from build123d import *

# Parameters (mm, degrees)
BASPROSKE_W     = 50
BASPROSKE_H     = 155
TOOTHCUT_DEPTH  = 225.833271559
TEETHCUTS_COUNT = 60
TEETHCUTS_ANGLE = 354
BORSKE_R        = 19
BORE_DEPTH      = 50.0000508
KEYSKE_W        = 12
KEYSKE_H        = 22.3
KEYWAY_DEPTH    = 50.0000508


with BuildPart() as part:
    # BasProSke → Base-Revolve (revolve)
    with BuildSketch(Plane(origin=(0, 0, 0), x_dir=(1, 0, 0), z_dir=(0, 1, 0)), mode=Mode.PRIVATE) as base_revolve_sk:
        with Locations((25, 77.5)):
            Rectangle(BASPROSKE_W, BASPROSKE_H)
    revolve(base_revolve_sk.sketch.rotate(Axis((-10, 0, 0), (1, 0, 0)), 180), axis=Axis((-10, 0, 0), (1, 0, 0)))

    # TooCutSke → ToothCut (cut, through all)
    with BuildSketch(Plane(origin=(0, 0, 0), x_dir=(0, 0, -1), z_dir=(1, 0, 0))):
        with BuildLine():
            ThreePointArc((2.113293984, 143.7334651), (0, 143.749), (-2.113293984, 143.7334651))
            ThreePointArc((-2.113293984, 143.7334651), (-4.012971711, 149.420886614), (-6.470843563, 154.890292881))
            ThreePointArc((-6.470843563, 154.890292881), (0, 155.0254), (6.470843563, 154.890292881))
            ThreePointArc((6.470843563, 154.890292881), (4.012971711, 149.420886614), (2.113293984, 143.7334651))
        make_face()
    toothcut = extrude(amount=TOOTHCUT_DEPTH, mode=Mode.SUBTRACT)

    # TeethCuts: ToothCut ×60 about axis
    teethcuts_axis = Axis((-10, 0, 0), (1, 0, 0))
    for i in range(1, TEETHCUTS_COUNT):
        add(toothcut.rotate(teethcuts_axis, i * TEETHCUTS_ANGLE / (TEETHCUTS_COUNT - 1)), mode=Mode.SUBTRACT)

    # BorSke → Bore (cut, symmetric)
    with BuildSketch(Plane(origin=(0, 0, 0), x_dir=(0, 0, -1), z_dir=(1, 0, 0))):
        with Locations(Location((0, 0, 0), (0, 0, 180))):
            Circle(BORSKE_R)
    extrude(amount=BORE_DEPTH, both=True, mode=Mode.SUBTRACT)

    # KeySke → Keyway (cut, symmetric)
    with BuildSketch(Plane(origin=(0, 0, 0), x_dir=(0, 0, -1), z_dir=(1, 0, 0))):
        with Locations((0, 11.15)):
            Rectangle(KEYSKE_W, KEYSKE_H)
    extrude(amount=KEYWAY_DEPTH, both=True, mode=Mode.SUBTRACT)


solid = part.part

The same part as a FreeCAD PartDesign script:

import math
import FreeCAD as App
import Part
import Sketcher

V = App.Vector
Q = App.Units.Quantity

doc = App.newDocument("Part")
body = doc.addObject("PartDesign::Body", "Body")

sketch1 = body.newObject("Sketcher::SketchObject", "Sketch")
sketch1.AttachmentSupport = (doc.getObject("XZ_Plane"), [""])
sketch1.MapMode = "FlatFace"
sketch1.addGeometry([
    Part.LineSegment(V(0, -155, 0), V(0, 0, 0)),
    Part.LineSegment(V(0, 0, 0), V(50, 0, 0)),
    Part.LineSegment(V(50, 0, 0), V(50, -155, 0)),
    Part.LineSegment(V(50, -155, 0), V(0, -155, 0)),
], False)
sketch1.addConstraint([
    Sketcher.Constraint("Coincident", 0, 2, 1, 1),
    Sketcher.Constraint("Coincident", 1, 2, 2, 1),
    Sketcher.Constraint("Coincident", 2, 2, 3, 1),
    Sketcher.Constraint("Coincident", 3, 2, 0, 1),
    Sketcher.Constraint("Vertical", 0),
    Sketcher.Constraint("Horizontal", 1),
    Sketcher.Constraint("Vertical", 2),
    Sketcher.Constraint("Horizontal", 3),
    Sketcher.Constraint("Coincident", 0, 2, -1, 1),
    Sketcher.Constraint("DistanceX", 1, 1, 1, 2, Q("50 mm")),
    Sketcher.Constraint("DistanceY", 0, 1, 0, 2, Q("155 mm")),
])
revolution = body.newObject("PartDesign::Revolution", "Revolution")
revolution.Profile = sketch1
revolution.ReferenceAxis = (sketch1, ["H_Axis"])
revolution.Angle = 360

sketch2 = body.newObject("Sketcher::SketchObject", "Sketch001")
sketch2.AttachmentSupport = (doc.getObject("YZ_Plane"), [""])
sketch2.MapMode = "FlatFace"
sketch2.addGeometry([
    Part.ArcOfCircle(Part.Circle(V(0, 0, 0), V(0, 0, 1), 143.7), math.radians(-0.84), math.radians(0.84)),
    Part.ArcOfCircle(Part.Circle(V(127.6, -59.9, 0), V(0, 0, 1), 60), math.radians(62.94), math.radians(74.39)),
    Part.ArcOfCircle(Part.Circle(V(0, 0, 0), V(0, 0, 1), 155), math.radians(-2.39), math.radians(2.39)),
    Part.ArcOfCircle(Part.Circle(V(127.6, 59.9, 0), V(0, 0, 1), 60), math.radians(-74.39), math.radians(-62.94)),
], False)
sketch2.addConstraint([
    Sketcher.Constraint("Coincident", 0, 1, 1, 2),
    Sketcher.Constraint("Coincident", 1, 1, 2, 1),
    Sketcher.Constraint("Coincident", 2, 2, 3, 2),
    Sketcher.Constraint("Coincident", 3, 1, 0, 2),
    Sketcher.Constraint("Coincident", 0, 3, -1, 1),
    Sketcher.Constraint("Coincident", 2, 3, -1, 1),
    Sketcher.Constraint("Equal", 1, 3),
    Sketcher.Constraint("Symmetric", 1, 3, 3, 3, -1),
    Sketcher.Constraint("Radius", 1, Q("60 mm")),
    Sketcher.Constraint("Radius", 2, Q("155.0254 mm")),
    Sketcher.Constraint("Radius", 0, Q("143.749004 mm")),
    Sketcher.Constraint("DistanceY", 0, 1, 3, 3, Q("62.014702 mm")),
    Sketcher.Constraint("DistanceX", 1, 3, 1, 1, Q("27.29789 mm")),
])
pocket1 = body.newObject("PartDesign::Pocket", "Pocket")
pocket1.Profile = sketch2
pocket1.Type = "ThroughAll"
pocket1.Reversed = True
doc.recompute()

polarpattern = body.newObject("PartDesign::PolarPattern", "PolarPattern")
polarpattern.Originals = [pocket1]
polarpattern.Axis = (doc.getObject("X_Axis"), [""])
polarpattern.Angle = 360
polarpattern.Occurrences = 60
body.Tip = polarpattern

sketch3 = body.newObject("Sketcher::SketchObject", "Sketch002")
sketch3.AttachmentSupport = (doc.getObject("YZ_Plane"), [""])
sketch3.MapMode = "FlatFace"
sketch3.addGeometry(Part.Circle(V(0, 0, 0), V(0, 0, 1), 19), False)
sketch3.addConstraint([
    Sketcher.Constraint("Coincident", 0, 3, -1, 1),
    Sketcher.Constraint("Diameter", 0, Q("38 mm")),
])
pocket2 = body.newObject("PartDesign::Pocket", "Pocket001")
pocket2.Profile = sketch3
pocket2.Length = 100.000102
pocket2.Midplane = True

sketch4 = body.newObject("Sketcher::SketchObject", "Sketch003")
sketch4.AttachmentSupport = (doc.getObject("YZ_Plane"), [""])
sketch4.MapMode = "FlatFace"
sketch4.addGeometry([
    Part.LineSegment(V(22, 6, 0), V(0, 6, 0)),
    Part.LineSegment(V(0, 6, 0), V(0, -6, 0)),
    Part.LineSegment(V(0, -6, 0), V(22, -6, 0)),
    Part.LineSegment(V(22, -6, 0), V(22, 6, 0)),
], False)
sketch4.addConstraint([
    Sketcher.Constraint("Coincident", 0, 2, 1, 1),
    Sketcher.Constraint("Coincident", 1, 2, 2, 1),
    Sketcher.Constraint("Coincident", 2, 2, 3, 1),
    Sketcher.Constraint("Coincident", 3, 2, 0, 1),
    Sketcher.Constraint("Horizontal", 0),
    Sketcher.Constraint("Vertical", 1),
    Sketcher.Constraint("Horizontal", 2),
    Sketcher.Constraint("Vertical", 3),
    Sketcher.Constraint("Symmetric", 0, 2, 1, 2, -1, 1),
    Sketcher.Constraint("DistanceY", 1, 2, 1, 1, Q("12 mm")),
    Sketcher.Constraint("DistanceX", 0, 2, 0, 1, Q("22.3 mm")),
])
pocket3 = body.newObject("PartDesign::Pocket", "Pocket002")
pocket3.Profile = sketch4
pocket3.Length = 100.000102
pocket3.Midplane = True

doc.recompute()
